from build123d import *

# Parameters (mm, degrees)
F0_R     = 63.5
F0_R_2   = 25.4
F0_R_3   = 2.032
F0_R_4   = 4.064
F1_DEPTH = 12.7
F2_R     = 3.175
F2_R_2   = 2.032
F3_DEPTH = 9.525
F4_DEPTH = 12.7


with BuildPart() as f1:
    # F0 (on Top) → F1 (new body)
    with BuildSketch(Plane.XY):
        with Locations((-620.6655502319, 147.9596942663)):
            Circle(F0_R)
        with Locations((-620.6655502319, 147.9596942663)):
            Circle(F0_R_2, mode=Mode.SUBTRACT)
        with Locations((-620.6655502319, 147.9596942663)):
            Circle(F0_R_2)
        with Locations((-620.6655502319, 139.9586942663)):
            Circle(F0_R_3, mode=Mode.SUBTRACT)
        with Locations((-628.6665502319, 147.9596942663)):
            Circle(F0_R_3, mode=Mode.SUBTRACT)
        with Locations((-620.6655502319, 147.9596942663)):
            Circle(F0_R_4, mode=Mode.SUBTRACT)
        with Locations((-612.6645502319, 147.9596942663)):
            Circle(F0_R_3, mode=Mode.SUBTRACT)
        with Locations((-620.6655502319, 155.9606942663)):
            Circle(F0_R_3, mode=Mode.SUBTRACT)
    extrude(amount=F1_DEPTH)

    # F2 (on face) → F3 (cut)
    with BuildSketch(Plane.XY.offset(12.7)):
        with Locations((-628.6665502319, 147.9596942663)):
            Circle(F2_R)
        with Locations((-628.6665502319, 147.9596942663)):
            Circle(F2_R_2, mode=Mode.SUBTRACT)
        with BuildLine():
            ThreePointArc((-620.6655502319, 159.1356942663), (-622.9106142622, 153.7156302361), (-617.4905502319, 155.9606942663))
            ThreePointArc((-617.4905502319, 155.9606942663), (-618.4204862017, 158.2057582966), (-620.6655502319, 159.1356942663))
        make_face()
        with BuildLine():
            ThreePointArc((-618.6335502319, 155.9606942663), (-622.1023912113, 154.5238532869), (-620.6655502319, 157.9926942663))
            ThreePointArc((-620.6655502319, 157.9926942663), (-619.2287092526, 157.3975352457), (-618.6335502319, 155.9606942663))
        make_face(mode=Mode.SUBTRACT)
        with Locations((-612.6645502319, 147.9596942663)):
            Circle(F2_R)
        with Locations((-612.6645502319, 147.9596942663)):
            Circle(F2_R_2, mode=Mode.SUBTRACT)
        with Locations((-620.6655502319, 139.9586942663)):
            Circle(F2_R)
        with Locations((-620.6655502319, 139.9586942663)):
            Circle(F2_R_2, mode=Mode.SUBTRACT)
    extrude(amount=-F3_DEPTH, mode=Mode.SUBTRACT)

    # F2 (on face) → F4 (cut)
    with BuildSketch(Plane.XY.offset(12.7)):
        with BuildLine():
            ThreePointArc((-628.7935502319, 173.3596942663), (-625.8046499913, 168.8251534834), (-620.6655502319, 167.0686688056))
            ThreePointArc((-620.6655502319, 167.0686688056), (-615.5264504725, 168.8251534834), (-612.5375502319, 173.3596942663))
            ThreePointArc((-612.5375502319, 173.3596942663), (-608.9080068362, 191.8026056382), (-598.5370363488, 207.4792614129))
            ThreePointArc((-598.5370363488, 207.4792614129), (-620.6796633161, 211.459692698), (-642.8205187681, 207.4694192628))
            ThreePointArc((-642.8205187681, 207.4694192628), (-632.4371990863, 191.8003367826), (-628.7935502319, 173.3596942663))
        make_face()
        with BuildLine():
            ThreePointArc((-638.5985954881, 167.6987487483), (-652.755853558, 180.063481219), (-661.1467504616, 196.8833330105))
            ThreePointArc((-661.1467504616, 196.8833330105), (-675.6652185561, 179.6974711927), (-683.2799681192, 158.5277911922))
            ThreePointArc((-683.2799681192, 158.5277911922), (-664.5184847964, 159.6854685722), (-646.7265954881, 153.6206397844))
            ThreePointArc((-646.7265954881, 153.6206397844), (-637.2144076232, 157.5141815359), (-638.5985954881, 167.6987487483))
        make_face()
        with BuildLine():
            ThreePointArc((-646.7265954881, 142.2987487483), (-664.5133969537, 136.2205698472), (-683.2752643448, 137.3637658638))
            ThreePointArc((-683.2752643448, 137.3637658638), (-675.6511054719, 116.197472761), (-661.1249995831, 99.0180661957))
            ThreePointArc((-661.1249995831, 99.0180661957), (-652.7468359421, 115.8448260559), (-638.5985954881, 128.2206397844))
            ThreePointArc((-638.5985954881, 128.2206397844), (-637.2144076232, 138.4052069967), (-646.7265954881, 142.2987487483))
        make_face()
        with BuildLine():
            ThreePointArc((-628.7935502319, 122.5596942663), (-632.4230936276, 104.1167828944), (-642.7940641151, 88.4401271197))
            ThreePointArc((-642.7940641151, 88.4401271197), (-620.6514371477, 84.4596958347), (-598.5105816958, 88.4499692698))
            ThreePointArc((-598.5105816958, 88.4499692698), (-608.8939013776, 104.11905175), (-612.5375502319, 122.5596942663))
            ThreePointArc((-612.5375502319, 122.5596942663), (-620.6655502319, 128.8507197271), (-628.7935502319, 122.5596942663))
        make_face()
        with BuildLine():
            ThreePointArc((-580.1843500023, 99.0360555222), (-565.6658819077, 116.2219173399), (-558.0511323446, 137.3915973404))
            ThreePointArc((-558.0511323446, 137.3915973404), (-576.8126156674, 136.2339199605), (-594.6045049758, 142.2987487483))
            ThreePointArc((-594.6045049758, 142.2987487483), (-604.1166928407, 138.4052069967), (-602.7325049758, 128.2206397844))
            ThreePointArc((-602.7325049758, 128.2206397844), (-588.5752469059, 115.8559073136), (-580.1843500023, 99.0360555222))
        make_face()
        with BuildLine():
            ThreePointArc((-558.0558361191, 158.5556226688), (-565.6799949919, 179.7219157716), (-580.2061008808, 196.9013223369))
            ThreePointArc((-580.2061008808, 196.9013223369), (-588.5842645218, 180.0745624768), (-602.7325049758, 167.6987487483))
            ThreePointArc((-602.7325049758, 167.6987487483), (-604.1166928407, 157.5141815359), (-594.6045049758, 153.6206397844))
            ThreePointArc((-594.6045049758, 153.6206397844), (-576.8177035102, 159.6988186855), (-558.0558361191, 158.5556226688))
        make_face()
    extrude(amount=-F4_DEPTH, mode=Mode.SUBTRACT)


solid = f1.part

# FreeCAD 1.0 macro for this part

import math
import FreeCAD as App
import Part
import Sketcher

V = App.Vector
Q = App.Units.Quantity

doc = App.newDocument("Part")
body = doc.addObject("PartDesign::Body", "Body")

# Sketch on XY plane
sketch1 = doc.addObject("Sketcher::SketchObject", "Sketch")
body.addObject(sketch1)
sketch1.AttachmentSupport = (doc.XY_Plane, [""])
sketch1.MapMode = "FlatFace"
sketch1.addGeometry([
    Part.Circle(V(-620.7, 148, 0), V(0, 0, 1), 63.5),  # 0
    Part.Circle(V(-620.7, 140, 0), V(0, 0, 1), 2),  # 1
    Part.Circle(V(-628.7, 148, 0), V(0, 0, 1), 2),  # 2
    Part.Circle(V(-620.7, 148, 0), V(0, 0, 1), 4.1),  # 3
    Part.Circle(V(-620.7, 156, 0), V(0, 0, 1), 2),  # 4
    Part.Circle(V(-612.7, 148, 0), V(0, 0, 1), 2),  # 5
], False)
sketch1.addConstraint([
    Sketcher.Constraint("Coincident", 3, 3, 0, 3),
    Sketcher.Constraint("Equal", 1, 2),
    Sketcher.Constraint("Equal", 2, 4),
    Sketcher.Constraint("Equal", 4, 5),
    Sketcher.Constraint("Horizontal", 0, 3, 2, 3),
    Sketcher.Constraint("Horizontal", 3, 3, 5, 3),
    Sketcher.Constraint("Vertical", 0, 3, 1, 3),
    Sketcher.Constraint("Vertical", 3, 3, 4, 3),
    Sketcher.Constraint("Diameter", 0, Q("5 in")),
    Sketcher.Constraint("Diameter", 1, Q("0.16 in")),
    Sketcher.Constraint("Diameter", 3, Q("0.32 in")),
    Sketcher.Constraint("DistanceY", 1, 3, 4, 3, Q("0.63 in")),
    Sketcher.Constraint("DistanceX", 2, 3, 5, 3, Q("0.63 in")),
    Sketcher.Constraint("DistanceY", 1, 3, 0, 3, Q("0.315 in")),
    Sketcher.Constraint("DistanceX", 2, 3, 0, 3, Q("0.315 in")),
    Sketcher.Constraint("DistanceX", 0, 3, -1, 1, 620.66555),
    Sketcher.Constraint("DistanceY", -1, 1, 0, 3, 147.959694),
])
pad1 = doc.addObject("PartDesign::Pad", "Pad")
body.addObject(pad1)
pad1.Profile = sketch1
pad1.Length = Q("0.5 in")

# Sketch on XY plane
sketch2 = doc.addObject("Sketcher::SketchObject", "Sketch001")
body.addObject(sketch2)
sketch2.AttachmentSupport = (doc.XY_Plane, [""])
sketch2.MapMode = "FlatFace"
sketch2.AttachmentOffset = App.Placement(V(0, 0, 0.5 * 25.4), App.Rotation())
sketch2.addGeometry([
    Part.Circle(V(-628.7, 148, 0), V(0, 0, 1), 3.2),  # 0
    Part.Circle(V(-628.7, 148, 0), V(0, 0, 1), 2),  # 1
    Part.ArcOfCircle(Part.Circle(V(-620.7, 156, 0), V(0, 0, 1), 3.2), math.radians(90), math.radians(360)),  # 2
    Part.ArcOfCircle(Part.Circle(V(-620.7, 156, 0), V(0, 0, 1), 3.2), math.radians(0), math.radians(90)),  # 3
    Part.ArcOfCircle(Part.Circle(V(-620.7, 156, 0), V(0, 0, 1), 2), math.radians(0), math.radians(90)),  # 4
    Part.ArcOfCircle(Part.Circle(V(-620.7, 156, 0), V(0, 0, 1), 2), math.radians(90), math.radians(360)),  # 5
    Part.Circle(V(-612.7, 148, 0), V(0, 0, 1), 3.2),  # 6
    Part.Circle(V(-612.7, 148, 0), V(0, 0, 1), 2),  # 7
    Part.Circle(V(-620.7, 140, 0), V(0, 0, 1), 3.2),  # 8
    Part.Circle(V(-620.7, 140, 0), V(0, 0, 1), 2),  # 9
], False)
sketch2.addConstraint([
    Sketcher.Constraint("Tangent", 2, 1, 3, 2),
    Sketcher.Constraint("Coincident", 3, 1, 2, 2),
    Sketcher.Constraint("Tangent", 4, 1, 5, 2),
    Sketcher.Constraint("Coincident", 5, 1, 4, 2),
    Sketcher.Constraint("Coincident", 1, 3, 0, 3),
    Sketcher.Constraint("Coincident", 4, 3, 2, 3),
    Sketcher.Constraint("Coincident", 7, 3, 6, 3),
    Sketcher.Constraint("Coincident", 9, 3, 8, 3),
    Sketcher.Constraint("Equal", 0, 2),
    Sketcher.Constraint("Equal", 1, 4),
    Sketcher.Constraint("Equal", 3, 6),
    Sketcher.Constraint("Equal", 5, 7),
    Sketcher.Constraint("Equal", 6, 8),
    Sketcher.Constraint("Equal", 7, 9),
    Sketcher.Constraint("Horizontal", 1, 3, 6, 3),
    Sketcher.Constraint("Horizontal", 5, 3, 3, 1),
    Sketcher.Constraint("Horizontal", 3, 1, 4, 1),
    Sketcher.Constraint("Vertical", 5, 3, 8, 3),
    Sketcher.Constraint("Vertical", 9, 3, 2, 1),
    Sketcher.Constraint("Vertical", 2, 1, 5, 1),
    Sketcher.Constraint("Diameter", 0, Q("0.25 in")),
    Sketcher.Constraint("Diameter", 1, Q("0.16 in")),
    Sketcher.Constraint("DistanceX", 0, 3, 6, 3, Q("0.63 in")),
    Sketcher.Constraint("DistanceY", 8, 3, 2, 3, Q("0.63 in")),
    Sketcher.Constraint("DistanceY", 0, 3, 2, 1, Q("0.44 in")),
    Sketcher.Constraint("DistanceX", 0, 3, 2, 3, Q("0.315 in")),
    Sketcher.Constraint("DistanceX", 0, 3, -1, 1, 628.66655),
    Sketcher.Constraint("DistanceY", -1, 1, 0, 3, 147.959694),
])
pocket1 = doc.addObject("PartDesign::Pocket", "Pocket")
body.addObject(pocket1)
pocket1.Profile = sketch2
pocket1.Length = Q("0.375 in")

# Sketch on XY plane
sketch3 = doc.addObject("Sketcher::SketchObject", "Sketch002")
body.addObject(sketch3)
sketch3.AttachmentSupport = (doc.XY_Plane, [""])
sketch3.MapMode = "FlatFace"
sketch3.AttachmentOffset = App.Placement(V(0, 0, 0.5 * 25.4), App.Rotation())
sketch3.addGeometry([
    Part.ArcOfCircle(Part.Circle(V(-621, 175, 0), V(0, 0, 1), 8), math.radians(-165), math.radians(-90)),  # 0
    Part.ArcOfCircle(Part.Circle(V(-621, 175, 0), V(0, 0, 1), 8), math.radians(-90), math.radians(-15)),  # 1
    Part.ArcOfCircle(Part.Circle(V(-564, 173, 0), V(0, 0, 1), 48), math.radians(135), math.radians(180)),  # 2
    Part.ArcOfCircle(Part.Circle(V(-621, 148, 0), V(0, 0, 1), 63), math.radians(70), math.radians(110)),  # 3
    Part.ArcOfCircle(Part.Circle(V(-677, 173, 0), V(0, 0, 1), 48), math.radians(0), math.radians(45)),  # 4
    Part.ArcOfCircle(Part.Circle(V(-614, 210, 0), V(0, 0, 1), 48), math.radians(-165), math.radians(-120)),  # 5
    Part.ArcOfCircle(Part.Circle(V(-621, 148, 0), V(0, 0, 1), 64), math.radians(130), math.radians(170)),  # 6
    Part.ArcOfCircle(Part.Circle(V(-671, 112, 0), V(0, 0, 1), 48), math.radians(60), math.radians(105)),  # 7
    Part.ArcOfCircle(Part.Circle(V(-644, 162, 0), V(0, 0, 1), 8), math.radians(-105), math.radians(45)),  # 8
    Part.ArcOfCircle(Part.Circle(V(-671, 184, 0), V(0, 0, 1), 48), math.radians(-105), math.radians(-60)),  # 9
    Part.ArcOfCircle(Part.Circle(V(-621, 148, 0), V(0, 0, 1), 64), math.radians(-170), math.radians(-130)),  # 10
    Part.ArcOfCircle(Part.Circle(V(-614, 86, 0), V(0, 0, 1), 48), math.radians(120), math.radians(165)),  # 11
    Part.ArcOfCircle(Part.Circle(V(-644, 134, 0), V(0, 0, 1), 8), math.radians(-45), math.radians(105)),  # 12
    Part.ArcOfCircle(Part.Circle(V(-677, 123, 0), V(0, 0, 1), 48), math.radians(-45), math.radians(0)),  # 13
    Part.ArcOfCircle(Part.Circle(V(-621, 148, 0), V(0, 0, 1), 64), math.radians(-110), math.radians(-70)),  # 14
    Part.ArcOfCircle(Part.Circle(V(-564, 123, 0), V(0, 0, 1), 48), math.radians(180), math.radians(225)),  # 15
    Part.ArcOfCircle(Part.Circle(V(-621, 120, 0), V(0, 0, 1), 8), math.radians(15), math.radians(165)),  # 16
    Part.ArcOfCircle(Part.Circle(V(-621, 148, 0), V(0, 0, 1), 63), math.radians(-50), math.radians(-10)),  # 17
    Part.ArcOfCircle(Part.Circle(V(-570, 184, 0), V(0, 0, 1), 48), math.radians(-120), math.radians(-75)),  # 18
    Part.ArcOfCircle(Part.Circle(V(-597, 134, 0), V(0, 0, 1), 8), math.radians(75), math.radians(225)),  # 19
    Part.ArcOfCircle(Part.Circle(V(-627, 86, 0), V(0, 0, 1), 48), math.radians(15), math.radians(60)),  # 20
    Part.ArcOfCircle(Part.Circle(V(-621, 148, 0), V(0, 0, 1), 63), math.radians(10), math.radians(50)),  # 21
    Part.ArcOfCircle(Part.Circle(V(-627, 210, 0), V(0, 0, 1), 48), math.radians(-60), math.radians(-15)),  # 22
    Part.ArcOfCircle(Part.Circle(V(-597, 162, 0), V(0, 0, 1), 8), math.radians(135), math.radians(285)),  # 23
    Part.ArcOfCircle(Part.Circle(V(-570, 112, 0), V(0, 0, 1), 48), math.radians(75), math.radians(120)),  # 24
], False)
sketch3.addConstraint([
    Sketcher.Constraint("Tangent", 0, 2, 1, 1),
    Sketcher.Constraint("Coincident", 1, 2, 2, 2),
    Sketcher.Constraint("Coincident", 2, 1, 3, 1),
    Sketcher.Constraint("Coincident", 3, 2, 4, 2),
    Sketcher.Constraint("Coincident", 4, 1, 0, 1),
    Sketcher.Constraint("Coincident", 5, 1, 6, 1),
    Sketcher.Constraint("Coincident", 6, 2, 7, 2),
    Sketcher.Constraint("Coincident", 7, 1, 8, 1),
    Sketcher.Constraint("Coincident", 8, 2, 5, 2),
    Sketcher.Constraint("Coincident", 9, 1, 10, 1),
    Sketcher.Constraint("Coincident", 10, 2, 11, 2),
    Sketcher.Constraint("Coincident", 11, 1, 12, 1),
    Sketcher.Constraint("Coincident", 12, 2, 9, 2),
    Sketcher.Constraint("Coincident", 13, 1, 14, 1),
    Sketcher.Constraint("Coincident", 14, 2, 15, 2),
    Sketcher.Constraint("Coincident", 15, 1, 16, 1),
    Sketcher.Constraint("Coincident", 16, 2, 13, 2),
    Sketcher.Constraint("Coincident", 17, 2, 18, 2),
    Sketcher.Constraint("Coincident", 18, 1, 19, 1),
    Sketcher.Constraint("Coincident", 19, 2, 20, 2),
    Sketcher.Constraint("Coincident", 20, 1, 17, 1),
    Sketcher.Constraint("Coincident", 21, 2, 22, 2),
    Sketcher.Constraint("Coincident", 22, 1, 23, 1),
    Sketcher.Constraint("Coincident", 23, 2, 24, 2),
    Sketcher.Constraint("Coincident", 24, 1, 21, 1),
    Sketcher.Constraint("Coincident", 6, 3, 3, 3),
    Sketcher.Constraint("Coincident", 10, 3, 3, 3),
    Sketcher.Constraint("Coincident", 14, 3, 3, 3),
    Sketcher.Constraint("Coincident", 17, 3, 3, 3),
    Sketcher.Constraint("Coincident", 21, 3, 3, 3),
    Sketcher.Constraint("Equal", 0, 1),
    Sketcher.Constraint("Equal", 2, 5),
    Sketcher.Constraint("Equal", 3, 6),
    Sketcher.Constraint("Equal", 4, 7),
    Sketcher.Constraint("Equal", 1, 8),
    Sketcher.Constraint("Equal", 5, 9),
    Sketcher.Constraint("Equal", 6, 10),
    Sketcher.Constraint("Equal", 7, 11),
    Sketcher.Constraint("Equal", 8, 12),
    Sketcher.Constraint("Equal", 9, 13),
    Sketcher.Constraint("Equal", 10, 14),
    Sketcher.Constraint("Equal", 11, 15),
    Sketcher.Constraint("Equal", 12, 16),
    Sketcher.Constraint("Equal", 14, 17),
    Sketcher.Constraint("Equal", 15, 18),
    Sketcher.Constraint("Equal", 16, 19),
    Sketcher.Constraint("Equal", 13, 20),
    Sketcher.Constraint("Equal", 17, 21),
    Sketcher.Constraint("Equal", 18, 22),
    Sketcher.Constraint("Equal", 19, 23),
    Sketcher.Constraint("Equal", 20, 24),
    Sketcher.Constraint("Horizontal", 12, 3, 19, 3),
    Sketcher.Constraint("Horizontal", 8, 3, 23, 3),
    Sketcher.Constraint("Horizontal", 4, 3, 1, 2),
    Sketcher.Constraint("Horizontal", 1, 2, 4, 1),
    Sketcher.Constraint("Horizontal", 15, 1, 16, 2),
    Sketcher.Constraint("Horizontal", 12, 2, 18, 1),
    Sketcher.Constraint("Horizontal", 11, 1, 19, 2),
    Sketcher.Constraint("Horizontal", 8, 2, 22, 1),
    Sketcher.Constraint("Horizontal", 7, 1, 23, 2),
    Sketcher.Constraint("Vertical", 1, 3, 3, 3),
    Sketcher.Constraint("Vertical", 8, 3, 12, 3),
    Sketcher.Constraint("Vertical", 14, 3, 16, 3),
    Sketcher.Constraint("Vertical", 19, 3, 23, 3),
    Sketcher.Constraint("Vertical", 21, 3, 0, 2),
    Sketcher.Constraint("Vertical", 8, 2, 11, 1),
    Sketcher.Constraint("Vertical", 7, 1, 12, 2),
    Sketcher.Constraint("Vertical", 1, 2, 15, 1),
    Sketcher.Constraint("Radius", 3, Q("2.5 in")),
    Sketcher.Constraint("DistanceY", 3, 3, 4, 3, Q("1 in")),
    Sketcher.Constraint("DistanceY", 11, 3, 7, 3, Q("1 in")),
    Sketcher.Constraint("DistanceY", 15, 3, 6, 3, Q("1 in")),
    Sketcher.Constraint("DistanceY", 11, 1, 7, 1, Q("1 in")),
    Sketcher.Constraint("DistanceY", 15, 1, 6, 3, Q("1 in")),
    Sketcher.Constraint("DistanceX", 0, 3, 1, 2, Q("0.32 in")),
    Sketcher.Constraint("DistanceX", 7, 1, 8, 2, Q("0.32 in")),
    Sketcher.Constraint("Radius", 2, 48.486221),
    Sketcher.Constraint("Radius", 0, 8.396198),
    Sketcher.Constraint("Radius", 4, 48.486214),
    Sketcher.Constraint("DistanceX", 18, 3, -1, 1, 570.361398),
    Sketcher.Constraint("DistanceX", 10, 2, -1, 1, 661.125),
    Sketcher.Constraint("DistanceX", 21, 2, -1, 1, 580.206101),
    Sketcher.Constraint("DistanceY", 2, 3, 0, 3, 2.0686),
    Sketcher.Constraint("DistanceX", 4, 3, 5, 3, 62.8926),
    Sketcher.Constraint("DistanceX", 9, 1, 4, 3, 5.9955),
    Sketcher.Constraint("DistanceY", 20, 3, 10, 2, 12.805999),
    Sketcher.Constraint("DistanceY", 10, 2, 9, 1, 38.3457),
    Sketcher.Constraint("DistanceY", 21, 2, 5, 3, 12.805999),
    Sketcher.Constraint("DistanceX", 15, 3, 24, 1, 5.9955),
    Sketcher.Constraint("DistanceY", -1, 1, 5, 3, 209.707321),
    Sketcher.Constraint("DistanceX", 8, 3, -1, 1, 644.485728),
    Sketcher.Constraint("DistanceY", -1, 1, 8, 3, 161.71228),
    Sketcher.Constraint("DistanceY", -1, 1, 18, 3, 184.289041),
    Sketcher.Constraint("DistanceY", 13, 3, 4, 3, 50.836572),
])
pocket2 = doc.addObject("PartDesign::Pocket", "Pocket001")
body.addObject(pocket2)
pocket2.Profile = sketch3
pocket2.Length = Q("0.5 in")

doc.recompute()
